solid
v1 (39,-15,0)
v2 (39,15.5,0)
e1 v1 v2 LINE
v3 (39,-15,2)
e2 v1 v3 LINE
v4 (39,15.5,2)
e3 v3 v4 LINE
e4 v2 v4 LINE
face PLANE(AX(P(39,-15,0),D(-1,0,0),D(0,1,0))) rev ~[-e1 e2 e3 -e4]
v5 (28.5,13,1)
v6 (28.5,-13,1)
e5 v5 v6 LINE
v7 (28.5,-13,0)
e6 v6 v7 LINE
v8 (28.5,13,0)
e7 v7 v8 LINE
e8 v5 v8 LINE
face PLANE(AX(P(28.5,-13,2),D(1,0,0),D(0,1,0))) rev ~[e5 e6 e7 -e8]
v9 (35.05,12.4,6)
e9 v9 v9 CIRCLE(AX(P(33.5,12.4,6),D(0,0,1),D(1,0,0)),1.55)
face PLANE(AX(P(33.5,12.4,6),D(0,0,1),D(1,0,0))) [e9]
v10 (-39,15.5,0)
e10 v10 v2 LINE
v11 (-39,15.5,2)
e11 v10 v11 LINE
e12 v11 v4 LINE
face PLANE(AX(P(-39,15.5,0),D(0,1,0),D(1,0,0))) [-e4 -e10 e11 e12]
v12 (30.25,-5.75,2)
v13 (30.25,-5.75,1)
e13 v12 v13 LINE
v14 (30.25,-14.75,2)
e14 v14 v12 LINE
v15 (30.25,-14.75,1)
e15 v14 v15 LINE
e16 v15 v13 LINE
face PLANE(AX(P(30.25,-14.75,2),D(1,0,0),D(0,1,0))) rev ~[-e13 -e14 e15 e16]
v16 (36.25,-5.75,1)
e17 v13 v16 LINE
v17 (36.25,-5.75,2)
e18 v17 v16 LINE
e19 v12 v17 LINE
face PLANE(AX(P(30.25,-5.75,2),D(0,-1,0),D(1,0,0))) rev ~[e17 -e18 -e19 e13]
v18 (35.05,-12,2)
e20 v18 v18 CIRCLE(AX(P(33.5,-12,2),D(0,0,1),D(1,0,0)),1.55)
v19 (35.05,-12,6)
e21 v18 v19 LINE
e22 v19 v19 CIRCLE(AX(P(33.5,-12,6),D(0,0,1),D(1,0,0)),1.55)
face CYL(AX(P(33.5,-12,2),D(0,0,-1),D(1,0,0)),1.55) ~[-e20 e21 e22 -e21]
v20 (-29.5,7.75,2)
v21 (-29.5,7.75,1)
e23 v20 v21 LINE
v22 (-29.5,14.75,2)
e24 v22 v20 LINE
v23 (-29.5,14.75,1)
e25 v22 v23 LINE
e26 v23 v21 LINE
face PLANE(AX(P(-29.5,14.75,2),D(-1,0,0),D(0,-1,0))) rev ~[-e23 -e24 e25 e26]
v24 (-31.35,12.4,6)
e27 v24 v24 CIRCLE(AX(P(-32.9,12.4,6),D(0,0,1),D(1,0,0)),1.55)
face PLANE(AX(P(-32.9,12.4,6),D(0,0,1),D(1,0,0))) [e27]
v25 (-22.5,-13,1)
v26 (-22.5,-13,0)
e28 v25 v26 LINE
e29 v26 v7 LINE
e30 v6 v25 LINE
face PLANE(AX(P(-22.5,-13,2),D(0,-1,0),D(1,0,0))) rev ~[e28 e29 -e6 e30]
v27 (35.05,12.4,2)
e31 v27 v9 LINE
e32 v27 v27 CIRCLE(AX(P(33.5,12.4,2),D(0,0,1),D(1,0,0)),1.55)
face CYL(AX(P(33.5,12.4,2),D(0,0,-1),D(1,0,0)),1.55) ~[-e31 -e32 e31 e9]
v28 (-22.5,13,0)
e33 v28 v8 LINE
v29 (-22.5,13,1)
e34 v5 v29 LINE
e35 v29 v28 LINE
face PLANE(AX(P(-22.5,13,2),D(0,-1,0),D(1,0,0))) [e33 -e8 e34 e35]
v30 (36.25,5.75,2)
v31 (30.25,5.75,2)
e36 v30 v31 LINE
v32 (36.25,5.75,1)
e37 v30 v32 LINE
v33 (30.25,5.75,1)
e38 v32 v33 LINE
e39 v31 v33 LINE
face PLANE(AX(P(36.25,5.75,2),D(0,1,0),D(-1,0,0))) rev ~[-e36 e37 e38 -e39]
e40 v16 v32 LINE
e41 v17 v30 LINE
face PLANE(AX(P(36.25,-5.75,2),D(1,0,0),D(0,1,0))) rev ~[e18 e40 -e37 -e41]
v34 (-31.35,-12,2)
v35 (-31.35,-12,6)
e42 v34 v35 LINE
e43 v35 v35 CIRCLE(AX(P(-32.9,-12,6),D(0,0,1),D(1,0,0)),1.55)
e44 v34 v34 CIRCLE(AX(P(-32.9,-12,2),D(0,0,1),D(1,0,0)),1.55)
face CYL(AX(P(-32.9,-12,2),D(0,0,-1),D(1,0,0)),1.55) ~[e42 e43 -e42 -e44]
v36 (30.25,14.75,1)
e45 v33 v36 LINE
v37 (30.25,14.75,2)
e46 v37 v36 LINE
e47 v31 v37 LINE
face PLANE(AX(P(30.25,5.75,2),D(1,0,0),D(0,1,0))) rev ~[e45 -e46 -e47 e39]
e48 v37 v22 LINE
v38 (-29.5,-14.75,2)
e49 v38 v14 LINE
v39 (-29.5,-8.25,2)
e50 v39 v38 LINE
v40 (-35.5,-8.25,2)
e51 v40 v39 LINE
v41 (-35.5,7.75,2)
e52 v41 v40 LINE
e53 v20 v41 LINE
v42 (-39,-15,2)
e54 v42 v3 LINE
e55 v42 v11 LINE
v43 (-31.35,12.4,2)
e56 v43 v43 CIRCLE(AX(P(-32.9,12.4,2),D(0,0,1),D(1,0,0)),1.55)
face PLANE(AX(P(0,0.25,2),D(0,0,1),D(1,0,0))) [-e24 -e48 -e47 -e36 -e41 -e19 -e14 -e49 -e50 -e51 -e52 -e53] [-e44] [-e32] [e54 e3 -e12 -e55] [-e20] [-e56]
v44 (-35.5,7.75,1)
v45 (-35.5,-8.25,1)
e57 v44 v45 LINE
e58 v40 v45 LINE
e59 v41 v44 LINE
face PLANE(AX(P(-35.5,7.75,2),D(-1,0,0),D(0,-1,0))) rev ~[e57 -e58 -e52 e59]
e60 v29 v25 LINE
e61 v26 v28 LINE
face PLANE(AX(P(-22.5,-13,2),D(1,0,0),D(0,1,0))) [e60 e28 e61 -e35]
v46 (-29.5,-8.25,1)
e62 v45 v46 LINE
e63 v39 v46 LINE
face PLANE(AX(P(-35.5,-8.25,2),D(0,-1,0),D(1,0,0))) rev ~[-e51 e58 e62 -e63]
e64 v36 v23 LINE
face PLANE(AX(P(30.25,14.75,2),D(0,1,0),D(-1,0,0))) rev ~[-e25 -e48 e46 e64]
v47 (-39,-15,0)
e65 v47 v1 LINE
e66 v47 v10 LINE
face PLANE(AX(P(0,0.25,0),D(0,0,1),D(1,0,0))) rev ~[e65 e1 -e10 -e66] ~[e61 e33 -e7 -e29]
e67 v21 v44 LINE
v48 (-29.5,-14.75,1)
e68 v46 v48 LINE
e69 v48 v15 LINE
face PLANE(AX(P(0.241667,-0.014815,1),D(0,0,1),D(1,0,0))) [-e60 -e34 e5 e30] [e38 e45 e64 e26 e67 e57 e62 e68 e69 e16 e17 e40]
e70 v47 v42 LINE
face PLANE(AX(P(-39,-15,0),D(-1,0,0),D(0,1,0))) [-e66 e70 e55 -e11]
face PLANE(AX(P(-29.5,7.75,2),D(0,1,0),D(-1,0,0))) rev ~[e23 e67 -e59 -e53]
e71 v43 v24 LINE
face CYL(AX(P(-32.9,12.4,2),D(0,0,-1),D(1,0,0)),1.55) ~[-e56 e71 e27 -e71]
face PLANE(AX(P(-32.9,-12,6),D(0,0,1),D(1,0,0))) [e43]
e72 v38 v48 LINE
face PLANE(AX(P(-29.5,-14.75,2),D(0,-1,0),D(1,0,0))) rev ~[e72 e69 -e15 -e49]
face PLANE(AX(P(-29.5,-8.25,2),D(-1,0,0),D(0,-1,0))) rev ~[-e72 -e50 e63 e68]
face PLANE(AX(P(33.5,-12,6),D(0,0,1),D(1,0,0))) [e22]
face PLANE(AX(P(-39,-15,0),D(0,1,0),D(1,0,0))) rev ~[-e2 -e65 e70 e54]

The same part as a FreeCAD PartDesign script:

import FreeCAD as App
import Part
import Sketcher
from FreeCAD import Vector


def add_polygon(sketch, points):
    """Adds a closed chain of lines whose ends are joined by coincident constraints."""
    first, n = sketch.GeometryCount, len(points)
    for a, b in zip(points, points[1:] + points[:1]):
        sketch.addGeometry(Part.LineSegment(App.Vector(*a, 0), App.Vector(*b, 0)), False)
    for i in range(n):
        sketch.addConstraint(Sketcher.Constraint("Coincident", first + i, 2, first + (i + 1) % n, 1))

doc = App.newDocument("Part")
body = doc.addObject("PartDesign::Body", "Body")

sketch1 = doc.addObject("Sketcher::SketchObject", "Sketch")
body.addObject(sketch1)
sketch1.AttachmentSupport = (doc.XY_Plane, [""])
sketch1.MapMode = "FlatFace"
add_polygon(sketch1, [(-39, 16), (-39, -15), (39, -15), (39, 16)])
sketch1.addConstraint([
    Sketcher.Constraint("Vertical", 0),
    Sketcher.Constraint("Horizontal", 1),
    Sketcher.Constraint("Vertical", 2),
    Sketcher.Constraint("Horizontal", 3),
    Sketcher.Constraint("DistanceX", 1, 1, 1, 2, 78.0),
    Sketcher.Constraint("DistanceY", 0, 2, 0, 1, 30.5),
    Sketcher.Constraint("DistanceX", 0, 2, -1, 1, 39.0),
    Sketcher.Constraint("DistanceY", 0, 2, -1, 1, 15.0),
])
pad1 = doc.addObject("PartDesign::Pad", "Pad")
body.addObject(pad1)
pad1.Profile = sketch1
pad1.Length = 2

sketch2 = doc.addObject("Sketcher::SketchObject", "Sketch001")
body.addObject(sketch2)
sketch2.AttachmentSupport = (doc.XY_Plane, [""])
sketch2.MapMode = "FlatFace"
sketch2.AttachmentOffset = App.Placement(Vector(0, 0, 2), App.Rotation())
add_polygon(sketch2, [(-22, 13), (-22, -13), (28, -13), (28, 13)])
sketch2.addConstraint([
    Sketcher.Constraint("Vertical", 0),
    Sketcher.Constraint("Horizontal", 1),
    Sketcher.Constraint("Vertical", 2),
    Sketcher.Constraint("Horizontal", 3),
    Sketcher.Constraint("DistanceX", 1, 1, 1, 2, 51.0),
    Sketcher.Constraint("DistanceY", 0, 2, 0, 1, 26.0),
    Sketcher.Constraint("DistanceY", 0, 2, -1, 1, 13.0),
    Sketcher.Constraint("DistanceX", 0, 2, -1, 1, 22.5),
])
pocket1 = doc.addObject("PartDesign::Pocket", "Pocket")
body.addObject(pocket1)
pocket1.Profile = sketch2
pocket1.Length = 5

sketch3 = doc.addObject("Sketcher::SketchObject", "Sketch002")
body.addObject(sketch3)
sketch3.AttachmentSupport = (doc.XY_Plane, [""])
sketch3.MapMode = "FlatFace"
sketch3.AttachmentOffset = App.Placement(Vector(0, 0, 2), App.Rotation())
add_polygon(sketch3, [(-36, 8), (-36, -8), (-30, -8), (-30, -15), (30, -15), (30, -6), (36, -6), (36, 6), (30, 6), (30, 15), (-30, 15), (-30, 8)])
sketch3.addConstraint([
    Sketcher.Constraint("Vertical", 0),
    Sketcher.Constraint("Horizontal", 1),
    Sketcher.Constraint("Vertical", 2),
    Sketcher.Constraint("Horizontal", 3),
    Sketcher.Constraint("Vertical", 4),
    Sketcher.Constraint("Horizontal", 5),
    Sketcher.Constraint("Vertical", 6),
    Sketcher.Constraint("Horizontal", 7),
    Sketcher.Constraint("Vertical", 8),
    Sketcher.Constraint("Horizontal", 9),
    Sketcher.Constraint("Vertical", 10),
    Sketcher.Constraint("Horizontal", 11),
    Sketcher.Constraint("Symmetric", 4, 2, 7, 2, -1),
    Sketcher.Constraint("Symmetric", 2, 2, 9, 2, -1),
    Sketcher.Constraint("Equal", 1, 5),
    Sketcher.Constraint("DistanceX", 1, 1, 1, 2, 6.0),
    Sketcher.Constraint("DistanceY", 0, 2, 0, 1, 16.0),
    Sketcher.Constraint("DistanceY", 4, 1, 4, 2, 9.0),
    Sketcher.Constraint("DistanceY", 10, 2, 10, 1, 7.0),
    Sketcher.Constraint("DistanceY", 2, 2, 2, 1, 6.5),
    Sketcher.Constraint("DistanceX", 3, 1, 3, 2, 59.75),
    Sketcher.Constraint("DistanceX", 0, 2, -1, 1, 35.5),
])
pocket2 = doc.addObject("PartDesign::Pocket", "Pocket001")
body.addObject(pocket2)
pocket2.Profile = sketch3
pocket2.Length = 1

sketch4 = doc.addObject("Sketcher::SketchObject", "Sketch003")
body.addObject(sketch4)
sketch4.AttachmentSupport = (doc.XY_Plane, [""])
sketch4.MapMode = "FlatFace"
sketch4.AttachmentOffset = App.Placement(Vector(0, 0, 2), App.Rotation())
sketch4.addGeometry([
    Part.Circle(Vector(33.5, 12.4, 0), Vector(0, 0, 1), 1.6),
    Part.Circle(Vector(33.5, -12, 0), Vector(0, 0, 1), 1.6),
    Part.Circle(Vector(-32.9, 12.4, 0), Vector(0, 0, 1), 1.6),
    Part.Circle(Vector(-32.9, -12, 0), Vector(0, 0, 1), 1.6),
], False)
sketch4.addConstraint([
    Sketcher.Constraint("Equal", 0, 1),
    Sketcher.Constraint("Equal", 1, 2),
    Sketcher.Constraint("Equal", 2, 3),
    Sketcher.Constraint("Horizontal", 0, 3, 2, 3),
    Sketcher.Constraint("Horizontal", 1, 3, 3, 3),
    Sketcher.Constraint("Vertical", 0, 3, 1, 3),
    Sketcher.Constraint("Vertical", 2, 3, 3, 3),
    Sketcher.Constraint("Diameter", 0, 3.1),
    Sketcher.Constraint("DistanceY", 1, 3, -1, 1, 12.0),
    Sketcher.Constraint("DistanceX", -1, 1, 0, 3, 33.5),
    Sketcher.Constraint("DistanceY", -1, 1, 0, 3, 12.4),
    Sketcher.Constraint("DistanceX", 2, 3, -1, 1, 32.9),
])
pad2 = doc.addObject("PartDesign::Pad", "Pad001")
body.addObject(pad2)
pad2.Profile = sketch4
pad2.Length = 4

doc.recompute()
